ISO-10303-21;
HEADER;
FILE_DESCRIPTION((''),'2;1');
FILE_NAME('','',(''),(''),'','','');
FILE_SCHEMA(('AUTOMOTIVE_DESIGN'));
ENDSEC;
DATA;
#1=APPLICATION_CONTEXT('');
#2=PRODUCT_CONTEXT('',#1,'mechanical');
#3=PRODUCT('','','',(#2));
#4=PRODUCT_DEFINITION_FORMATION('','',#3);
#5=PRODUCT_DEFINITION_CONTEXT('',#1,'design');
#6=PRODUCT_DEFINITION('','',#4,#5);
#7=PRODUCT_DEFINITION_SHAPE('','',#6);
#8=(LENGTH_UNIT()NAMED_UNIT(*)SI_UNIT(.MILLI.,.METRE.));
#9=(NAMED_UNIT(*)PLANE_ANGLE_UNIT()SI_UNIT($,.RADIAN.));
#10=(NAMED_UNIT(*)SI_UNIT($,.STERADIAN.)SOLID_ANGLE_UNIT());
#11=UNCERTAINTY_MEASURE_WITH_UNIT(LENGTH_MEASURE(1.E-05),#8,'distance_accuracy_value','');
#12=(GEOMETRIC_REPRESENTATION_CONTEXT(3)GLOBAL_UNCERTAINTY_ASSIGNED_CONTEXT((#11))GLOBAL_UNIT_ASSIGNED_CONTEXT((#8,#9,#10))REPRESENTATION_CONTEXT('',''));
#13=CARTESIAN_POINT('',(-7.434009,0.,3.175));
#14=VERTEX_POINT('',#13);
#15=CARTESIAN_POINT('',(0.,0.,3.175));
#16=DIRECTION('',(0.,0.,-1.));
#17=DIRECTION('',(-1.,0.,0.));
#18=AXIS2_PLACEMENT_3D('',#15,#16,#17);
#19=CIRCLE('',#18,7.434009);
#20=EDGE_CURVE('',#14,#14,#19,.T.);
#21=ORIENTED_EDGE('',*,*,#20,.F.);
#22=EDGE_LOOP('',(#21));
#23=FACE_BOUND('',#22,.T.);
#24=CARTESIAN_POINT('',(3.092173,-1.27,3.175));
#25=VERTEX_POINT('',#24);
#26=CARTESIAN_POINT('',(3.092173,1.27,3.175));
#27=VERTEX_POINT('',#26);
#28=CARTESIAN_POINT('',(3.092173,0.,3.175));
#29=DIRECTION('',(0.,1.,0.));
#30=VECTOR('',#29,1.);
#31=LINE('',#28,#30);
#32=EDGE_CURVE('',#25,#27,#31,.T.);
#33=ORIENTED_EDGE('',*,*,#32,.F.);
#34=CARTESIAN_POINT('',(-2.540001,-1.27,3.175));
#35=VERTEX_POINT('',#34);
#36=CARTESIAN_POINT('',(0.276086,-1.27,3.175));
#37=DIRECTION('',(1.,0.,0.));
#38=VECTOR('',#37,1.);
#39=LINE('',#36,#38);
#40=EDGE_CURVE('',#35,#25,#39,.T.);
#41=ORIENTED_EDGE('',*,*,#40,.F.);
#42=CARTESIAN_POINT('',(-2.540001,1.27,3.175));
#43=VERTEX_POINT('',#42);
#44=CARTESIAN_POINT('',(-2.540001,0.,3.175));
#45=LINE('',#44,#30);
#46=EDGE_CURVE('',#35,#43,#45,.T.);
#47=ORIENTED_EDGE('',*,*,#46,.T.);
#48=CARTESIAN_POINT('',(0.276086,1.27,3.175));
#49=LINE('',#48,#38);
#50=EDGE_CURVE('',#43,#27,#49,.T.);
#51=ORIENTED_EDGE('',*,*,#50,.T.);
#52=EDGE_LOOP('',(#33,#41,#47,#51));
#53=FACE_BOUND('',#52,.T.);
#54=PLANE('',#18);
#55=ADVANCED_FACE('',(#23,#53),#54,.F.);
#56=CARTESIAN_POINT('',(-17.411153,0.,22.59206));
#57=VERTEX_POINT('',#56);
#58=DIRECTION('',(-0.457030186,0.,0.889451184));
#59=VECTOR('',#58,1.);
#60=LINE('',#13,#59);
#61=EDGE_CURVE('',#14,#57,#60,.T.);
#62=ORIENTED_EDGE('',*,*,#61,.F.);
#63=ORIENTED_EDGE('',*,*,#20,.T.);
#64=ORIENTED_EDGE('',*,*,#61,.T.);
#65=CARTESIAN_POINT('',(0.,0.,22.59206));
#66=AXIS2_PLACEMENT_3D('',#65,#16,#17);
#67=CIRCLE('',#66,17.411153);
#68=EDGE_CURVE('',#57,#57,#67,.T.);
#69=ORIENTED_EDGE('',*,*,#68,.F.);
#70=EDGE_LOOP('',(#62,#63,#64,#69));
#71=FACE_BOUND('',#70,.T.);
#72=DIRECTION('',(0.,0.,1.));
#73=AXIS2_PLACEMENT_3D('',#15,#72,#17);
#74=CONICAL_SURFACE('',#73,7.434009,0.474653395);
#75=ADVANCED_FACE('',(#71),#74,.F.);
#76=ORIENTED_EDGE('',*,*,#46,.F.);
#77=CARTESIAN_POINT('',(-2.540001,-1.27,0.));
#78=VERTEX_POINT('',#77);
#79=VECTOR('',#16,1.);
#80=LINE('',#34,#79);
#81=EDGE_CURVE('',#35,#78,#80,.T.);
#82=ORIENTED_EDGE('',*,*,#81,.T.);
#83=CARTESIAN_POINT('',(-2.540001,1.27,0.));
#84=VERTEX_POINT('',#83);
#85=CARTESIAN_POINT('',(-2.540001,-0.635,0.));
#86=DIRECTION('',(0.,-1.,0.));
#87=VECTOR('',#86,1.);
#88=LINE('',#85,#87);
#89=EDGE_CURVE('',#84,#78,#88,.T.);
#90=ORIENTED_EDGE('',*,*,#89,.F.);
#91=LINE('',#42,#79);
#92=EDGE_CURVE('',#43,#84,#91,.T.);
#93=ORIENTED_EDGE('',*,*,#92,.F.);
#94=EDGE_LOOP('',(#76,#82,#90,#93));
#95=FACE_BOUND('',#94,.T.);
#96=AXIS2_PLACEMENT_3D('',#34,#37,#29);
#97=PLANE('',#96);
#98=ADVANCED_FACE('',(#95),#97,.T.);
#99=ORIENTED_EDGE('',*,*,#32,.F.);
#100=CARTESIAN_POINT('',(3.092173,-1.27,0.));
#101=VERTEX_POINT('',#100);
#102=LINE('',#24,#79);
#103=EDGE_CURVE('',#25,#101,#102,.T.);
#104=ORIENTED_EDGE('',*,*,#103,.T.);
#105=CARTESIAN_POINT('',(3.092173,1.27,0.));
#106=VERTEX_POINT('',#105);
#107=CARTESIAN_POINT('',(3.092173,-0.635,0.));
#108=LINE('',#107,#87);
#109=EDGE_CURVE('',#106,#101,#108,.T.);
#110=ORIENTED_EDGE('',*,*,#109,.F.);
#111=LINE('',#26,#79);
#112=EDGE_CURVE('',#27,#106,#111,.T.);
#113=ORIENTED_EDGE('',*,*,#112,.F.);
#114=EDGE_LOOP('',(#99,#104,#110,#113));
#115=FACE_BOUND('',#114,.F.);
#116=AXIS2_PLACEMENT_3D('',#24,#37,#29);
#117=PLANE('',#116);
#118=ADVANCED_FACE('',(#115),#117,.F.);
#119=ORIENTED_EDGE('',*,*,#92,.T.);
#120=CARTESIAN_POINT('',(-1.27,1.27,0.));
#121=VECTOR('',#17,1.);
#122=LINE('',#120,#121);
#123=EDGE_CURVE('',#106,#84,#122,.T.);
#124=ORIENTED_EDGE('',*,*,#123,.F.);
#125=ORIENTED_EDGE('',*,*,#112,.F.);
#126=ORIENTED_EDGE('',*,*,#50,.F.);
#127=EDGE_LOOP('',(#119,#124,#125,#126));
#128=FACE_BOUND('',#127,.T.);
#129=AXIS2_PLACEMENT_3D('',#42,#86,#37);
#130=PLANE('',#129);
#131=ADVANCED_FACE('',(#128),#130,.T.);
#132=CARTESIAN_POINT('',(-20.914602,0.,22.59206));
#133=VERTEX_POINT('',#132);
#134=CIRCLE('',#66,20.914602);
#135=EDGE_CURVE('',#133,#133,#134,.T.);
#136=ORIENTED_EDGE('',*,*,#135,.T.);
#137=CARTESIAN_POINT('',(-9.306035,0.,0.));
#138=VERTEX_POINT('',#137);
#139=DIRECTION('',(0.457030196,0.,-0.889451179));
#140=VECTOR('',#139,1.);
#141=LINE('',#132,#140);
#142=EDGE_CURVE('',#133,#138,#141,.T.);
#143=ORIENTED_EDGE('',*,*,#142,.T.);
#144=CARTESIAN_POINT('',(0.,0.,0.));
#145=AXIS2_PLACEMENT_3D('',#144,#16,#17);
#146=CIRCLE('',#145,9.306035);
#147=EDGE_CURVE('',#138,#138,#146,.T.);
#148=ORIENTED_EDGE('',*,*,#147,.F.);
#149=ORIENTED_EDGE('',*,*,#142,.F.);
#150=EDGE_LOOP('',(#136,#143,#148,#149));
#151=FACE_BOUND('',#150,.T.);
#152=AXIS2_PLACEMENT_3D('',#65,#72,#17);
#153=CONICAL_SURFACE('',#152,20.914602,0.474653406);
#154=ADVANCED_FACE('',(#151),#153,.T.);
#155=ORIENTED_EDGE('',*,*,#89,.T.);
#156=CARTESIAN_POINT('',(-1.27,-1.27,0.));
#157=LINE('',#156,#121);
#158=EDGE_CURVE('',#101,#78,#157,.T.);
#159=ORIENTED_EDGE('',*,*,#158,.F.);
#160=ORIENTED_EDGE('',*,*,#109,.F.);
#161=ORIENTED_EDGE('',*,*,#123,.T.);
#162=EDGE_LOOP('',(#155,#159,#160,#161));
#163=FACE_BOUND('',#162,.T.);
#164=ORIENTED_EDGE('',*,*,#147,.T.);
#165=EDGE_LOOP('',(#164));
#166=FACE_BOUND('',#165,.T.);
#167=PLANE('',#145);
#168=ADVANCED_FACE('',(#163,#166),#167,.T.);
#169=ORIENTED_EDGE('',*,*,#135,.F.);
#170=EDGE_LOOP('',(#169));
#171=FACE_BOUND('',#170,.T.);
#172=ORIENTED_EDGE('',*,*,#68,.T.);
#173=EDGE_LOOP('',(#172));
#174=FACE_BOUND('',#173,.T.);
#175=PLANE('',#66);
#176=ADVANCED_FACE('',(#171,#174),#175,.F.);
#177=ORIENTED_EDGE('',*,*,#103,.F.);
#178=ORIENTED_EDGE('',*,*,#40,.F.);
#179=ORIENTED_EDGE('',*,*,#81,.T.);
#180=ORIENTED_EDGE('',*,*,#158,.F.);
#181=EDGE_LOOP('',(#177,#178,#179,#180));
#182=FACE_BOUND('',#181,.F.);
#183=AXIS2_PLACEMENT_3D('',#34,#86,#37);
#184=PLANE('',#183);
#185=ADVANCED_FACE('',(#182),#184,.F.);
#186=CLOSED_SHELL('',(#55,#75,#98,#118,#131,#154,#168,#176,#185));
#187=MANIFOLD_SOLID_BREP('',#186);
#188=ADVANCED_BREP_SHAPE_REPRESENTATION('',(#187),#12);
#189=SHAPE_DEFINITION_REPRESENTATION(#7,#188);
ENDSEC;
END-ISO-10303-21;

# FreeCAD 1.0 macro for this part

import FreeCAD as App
import Part
import Sketcher
from FreeCAD import Vector
Q = App.Units.Quantity


def add_polygon(sketch, points):
    """Adds a closed chain of lines whose ends are joined by coincident constraints."""
    first, n = sketch.GeometryCount, len(points)
    for a, b in zip(points, points[1:] + points[:1]):
        sketch.addGeometry(Part.LineSegment(App.Vector(*a, 0), App.Vector(*b, 0)), False)
    for i in range(n):
        sketch.addConstraint(Sketcher.Constraint("Coincident", first + i, 2, first + (i + 1) % n, 1))

doc = App.newDocument("Part")
params = doc.addObject("Spreadsheet::Sheet", "Params")
for row, (alias, value) in enumerate([
    ("sketch1_length", "1 in"),
    ("sketch1_height", "0.125 in"),
    ("revolution_angle", "360 deg"),
    ("sketch2_height", "0.1 in"),
    ("pocket1_length", "1 in"),
], start=1):
    params.set(f"A{row}", alias)
    params.set(f"B{row}", "=" + value)
    params.setAlias(f"B{row}", alias)

body = doc.addObject("PartDesign::Body", "Body")

sketch1 = doc.addObject("Sketcher::SketchObject", "Sketch")
body.addObject(sketch1)
sketch1.AttachmentSupport = (doc.XZ_Plane, [""])
sketch1.MapMode = "FlatFace"
add_polygon(sketch1, [(-9.306035, 0), (0, 0), (0, 3.175), (-7.434009, 3.175), (-17.411153, 22.59206), (-20.914602, 22.59206)])
sketch1.addConstraint(Sketcher.Constraint("Horizontal", 0))
sketch1.addConstraint(Sketcher.Constraint("Vertical", 1))
sketch1.addConstraint(Sketcher.Constraint("Horizontal", 2))
sketch1.addConstraint(Sketcher.Constraint("Horizontal", 4))
sketch1.addConstraint(Sketcher.Constraint("Coincident", 0, 2, -1, 1))
sketch1.addConstraint(Sketcher.Constraint("Parallel", 3, 5))
sketch1.addConstraint(Sketcher.Constraint("Distance", 5, Q("1 in")))
sketch1.addConstraint(Sketcher.Constraint("DistanceY", 1, 1, 1, 2, Q("0.125 in")))
sketch1.addConstraint(Sketcher.Constraint("DistanceX", 2, 2, 2, 1, Q("7.434009 mm")))
sketch1.addConstraint(Sketcher.Constraint("DistanceX", 4, 2, 4, 1, Q("3.503449 mm")))
sketch1.addConstraint(Sketcher.Constraint("DistanceX", 4, 2, -1, 1, Q("20.914602 mm")))
sketch1.setExpression("Constraints[12]", "Params.sketch1_length")
sketch1.setExpression("Constraints[13]", "Params.sketch1_height")
revolution = doc.addObject("PartDesign::Revolution", "Revolution")
body.addObject(revolution)
revolution.Profile = sketch1
revolution.ReferenceAxis = (sketch1, ["V_Axis"])
revolution.setExpression("Angle", "Params.revolution_angle")

sketch2 = doc.addObject("Sketcher::SketchObject", "Sketch001")
body.addObject(sketch2)
sketch2.AttachmentSupport = (doc.XY_Plane, [""])
sketch2.MapMode = "FlatFace"
sketch2.AttachmentOffset = App.Placement(Vector(0, 0, 0.125 * 25.4), App.Rotation())
add_polygon(sketch2, [(-2.540001, 1.27), (-2.540001, -1.27), (3.092173, -1.27), (3.092173, 1.27)])
sketch2.addConstraint(Sketcher.Constraint("Vertical", 0))
sketch2.addConstraint(Sketcher.Constraint("Horizontal", 1))
sketch2.addConstraint(Sketcher.Constraint("Vertical", 2))
sketch2.addConstraint(Sketcher.Constraint("Horizontal", 3))
sketch2.addConstraint(Sketcher.Constraint("DistanceY", 0, 2, 0, 1, Q("0.1 in")))
sketch2.addConstraint(Sketcher.Constraint("DistanceX", 0, 2, -1, 1, Q("0.1 in")))
sketch2.addConstraint(Sketcher.Constraint("DistanceY", 0, 2, -1, 1, Q("0.05 in")))
sketch2.addConstraint(Sketcher.Constraint("DistanceX", 1, 1, 1, 2, Q("5.632173 mm")))
sketch2.setExpression("Constraints[8]", "Params.sketch2_height")
pocket1 = doc.addObject("PartDesign::Pocket", "Pocket")
body.addObject(pocket1)
pocket1.Profile = sketch2
pocket1.setExpression("Length", "Params.pocket1_length")

doc.recompute()
